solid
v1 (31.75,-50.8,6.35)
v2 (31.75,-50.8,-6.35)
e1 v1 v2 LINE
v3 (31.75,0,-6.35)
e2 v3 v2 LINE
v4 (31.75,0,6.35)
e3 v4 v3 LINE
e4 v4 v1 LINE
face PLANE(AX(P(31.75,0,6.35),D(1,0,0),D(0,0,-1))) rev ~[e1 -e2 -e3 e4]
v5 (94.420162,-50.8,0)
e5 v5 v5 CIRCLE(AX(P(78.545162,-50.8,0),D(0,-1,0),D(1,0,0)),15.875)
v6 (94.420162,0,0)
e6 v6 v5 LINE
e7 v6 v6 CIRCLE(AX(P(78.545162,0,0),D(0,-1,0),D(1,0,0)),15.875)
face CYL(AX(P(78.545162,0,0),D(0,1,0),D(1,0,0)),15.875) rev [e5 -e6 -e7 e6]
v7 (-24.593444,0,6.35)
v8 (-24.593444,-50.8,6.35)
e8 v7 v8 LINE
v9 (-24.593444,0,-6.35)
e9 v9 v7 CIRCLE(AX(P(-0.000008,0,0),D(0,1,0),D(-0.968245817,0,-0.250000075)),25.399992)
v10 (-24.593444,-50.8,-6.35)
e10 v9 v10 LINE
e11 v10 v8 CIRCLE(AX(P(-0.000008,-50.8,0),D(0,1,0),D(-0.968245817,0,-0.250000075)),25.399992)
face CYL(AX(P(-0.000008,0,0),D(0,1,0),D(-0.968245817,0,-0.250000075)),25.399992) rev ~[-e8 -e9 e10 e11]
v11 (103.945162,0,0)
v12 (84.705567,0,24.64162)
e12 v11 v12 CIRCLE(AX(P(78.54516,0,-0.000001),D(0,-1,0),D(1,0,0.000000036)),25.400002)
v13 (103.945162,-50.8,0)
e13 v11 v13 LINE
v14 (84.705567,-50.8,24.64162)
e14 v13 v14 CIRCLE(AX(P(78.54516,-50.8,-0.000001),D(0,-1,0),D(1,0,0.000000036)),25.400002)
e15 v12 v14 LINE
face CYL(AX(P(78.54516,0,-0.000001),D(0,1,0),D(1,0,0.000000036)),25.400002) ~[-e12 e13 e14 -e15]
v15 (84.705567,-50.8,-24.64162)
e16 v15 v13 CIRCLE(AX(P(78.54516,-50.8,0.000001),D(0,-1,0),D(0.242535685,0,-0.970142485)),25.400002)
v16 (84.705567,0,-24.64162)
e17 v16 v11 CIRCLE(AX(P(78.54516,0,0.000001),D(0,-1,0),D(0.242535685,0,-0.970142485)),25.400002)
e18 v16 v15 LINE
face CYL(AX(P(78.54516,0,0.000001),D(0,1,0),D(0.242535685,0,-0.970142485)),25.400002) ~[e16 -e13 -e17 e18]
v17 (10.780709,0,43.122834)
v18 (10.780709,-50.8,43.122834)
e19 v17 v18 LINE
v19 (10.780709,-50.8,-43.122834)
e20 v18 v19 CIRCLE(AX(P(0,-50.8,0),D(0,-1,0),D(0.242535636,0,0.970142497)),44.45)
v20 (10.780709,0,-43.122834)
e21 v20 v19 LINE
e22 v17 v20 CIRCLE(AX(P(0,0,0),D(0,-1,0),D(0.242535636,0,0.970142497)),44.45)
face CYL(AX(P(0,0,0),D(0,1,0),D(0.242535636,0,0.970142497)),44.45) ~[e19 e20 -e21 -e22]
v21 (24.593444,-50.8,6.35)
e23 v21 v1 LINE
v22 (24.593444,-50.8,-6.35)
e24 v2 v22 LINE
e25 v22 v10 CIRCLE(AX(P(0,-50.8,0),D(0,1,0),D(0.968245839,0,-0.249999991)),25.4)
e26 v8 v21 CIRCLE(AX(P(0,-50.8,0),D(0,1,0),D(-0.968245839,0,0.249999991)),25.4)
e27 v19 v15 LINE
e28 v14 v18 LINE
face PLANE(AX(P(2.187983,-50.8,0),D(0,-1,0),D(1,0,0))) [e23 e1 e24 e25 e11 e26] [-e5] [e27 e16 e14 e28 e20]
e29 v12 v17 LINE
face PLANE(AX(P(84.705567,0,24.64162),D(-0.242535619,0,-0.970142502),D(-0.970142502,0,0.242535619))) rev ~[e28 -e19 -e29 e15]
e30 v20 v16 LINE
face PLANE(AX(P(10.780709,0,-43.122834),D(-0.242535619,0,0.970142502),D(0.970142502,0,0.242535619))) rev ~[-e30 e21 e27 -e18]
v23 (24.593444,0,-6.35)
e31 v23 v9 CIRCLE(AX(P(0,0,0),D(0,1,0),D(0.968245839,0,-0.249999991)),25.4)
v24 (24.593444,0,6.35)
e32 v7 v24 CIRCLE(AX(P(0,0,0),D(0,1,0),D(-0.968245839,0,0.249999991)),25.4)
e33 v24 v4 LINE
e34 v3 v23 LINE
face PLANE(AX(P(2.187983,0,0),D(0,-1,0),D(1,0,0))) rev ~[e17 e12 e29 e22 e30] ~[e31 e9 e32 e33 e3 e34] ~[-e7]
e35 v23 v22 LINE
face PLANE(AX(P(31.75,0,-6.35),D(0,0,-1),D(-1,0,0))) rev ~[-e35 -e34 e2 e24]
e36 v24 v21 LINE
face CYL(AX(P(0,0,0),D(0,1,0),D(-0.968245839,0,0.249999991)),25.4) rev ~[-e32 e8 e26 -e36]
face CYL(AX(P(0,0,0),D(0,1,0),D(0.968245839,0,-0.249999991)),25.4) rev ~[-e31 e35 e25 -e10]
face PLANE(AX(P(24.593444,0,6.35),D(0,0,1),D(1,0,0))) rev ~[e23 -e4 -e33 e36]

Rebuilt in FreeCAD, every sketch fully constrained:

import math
import FreeCAD as App
import Part
import Sketcher
Q = App.Units.Quantity

doc = App.newDocument("Part")
body = doc.addObject("PartDesign::Body", "Body")

# Sketch on XZ plane
sketch1 = doc.addObject("Sketcher::SketchObject", "Sketch")
body.addObject(sketch1)
sketch1.AttachmentSupport = (doc.XZ_Plane, [""])
sketch1.MapMode = "FlatFace"
sketch1.addGeometry(Part.ArcOfCircle(Part.Circle(App.Vector(0, 0, 0), App.Vector(0, 0, 1), 44), math.radians(76), math.radians(284)), False)
sketch1.addGeometry(Part.LineSegment(App.Vector(11, -43, 0), App.Vector(85, -25, 0)), False)
sketch1.addGeometry(Part.ArcOfCircle(Part.Circle(App.Vector(79, 0, 0), App.Vector(0, 0, 1), 25), math.radians(-76), math.radians(0)), False)
sketch1.addGeometry(Part.ArcOfCircle(Part.Circle(App.Vector(79, 0, 0), App.Vector(0, 0, 1), 25), math.radians(0), math.radians(76)), False)
sketch1.addGeometry(Part.LineSegment(App.Vector(85, 25, 0), App.Vector(11, 43, 0)), False)
sketch1.addGeometry(Part.ArcOfCircle(Part.Circle(App.Vector(0, 0, 0), App.Vector(0, 0, 1), 25), math.radians(14), math.radians(166)), False)
sketch1.addGeometry(Part.LineSegment(App.Vector(25, 6, 0), App.Vector(32, 6, 0)), False)
sketch1.addGeometry(Part.LineSegment(App.Vector(32, 6, 0), App.Vector(32, -6, 0)), False)
sketch1.addGeometry(Part.LineSegment(App.Vector(32, -6, 0), App.Vector(25, -6, 0)), False)
sketch1.addGeometry(Part.ArcOfCircle(Part.Circle(App.Vector(0, 0, 0), App.Vector(0, 0, 1), 25), math.radians(-166), math.radians(-14)), False)
sketch1.addGeometry(Part.ArcOfCircle(Part.Circle(App.Vector(0, 0, 0), App.Vector(0, 0, 1), 25), math.radians(166), math.radians(194)), False)
sketch1.addGeometry(Part.Circle(App.Vector(79, 0, 0), App.Vector(0, 0, 1), 16), False)
sketch1.addConstraint(Sketcher.Constraint("Tangent", 0, 2, 1, 1))
sketch1.addConstraint(Sketcher.Constraint("Tangent", 1, 2, 2, 1))
sketch1.addConstraint(Sketcher.Constraint("Tangent", 2, 2, 3, 1))
sketch1.addConstraint(Sketcher.Constraint("Tangent", 3, 2, 4, 1))
sketch1.addConstraint(Sketcher.Constraint("Tangent", 4, 2, 0, 1))
sketch1.addConstraint(Sketcher.Constraint("Coincident", 5, 1, 6, 1))
sketch1.addConstraint(Sketcher.Constraint("Coincident", 6, 2, 7, 1))
sketch1.addConstraint(Sketcher.Constraint("Coincident", 7, 2, 8, 1))
sketch1.addConstraint(Sketcher.Constraint("Coincident", 8, 2, 9, 2))
sketch1.addConstraint(Sketcher.Constraint("Tangent", 9, 1, 10, 2))
sketch1.addConstraint(Sketcher.Constraint("Tangent", 10, 1, 5, 2))
sketch1.addConstraint(Sketcher.Constraint("Horizontal", 6))
sketch1.addConstraint(Sketcher.Constraint("Vertical", 7))
sketch1.addConstraint(Sketcher.Constraint("Horizontal", 8))
sketch1.addConstraint(Sketcher.Constraint("Coincident", 0, 3, -1, 1))
sketch1.addConstraint(Sketcher.Constraint("Coincident", 5, 3, -1, 1))
sketch1.addConstraint(Sketcher.Constraint("Coincident", 9, 3, -1, 1))
sketch1.addConstraint(Sketcher.Constraint("Coincident", 11, 3, 2, 3))
sketch1.addConstraint(Sketcher.Constraint("Equal", 2, 3))
sketch1.addConstraint(Sketcher.Constraint("PointOnObject", 2, 3, -1))
sketch1.addConstraint(Sketcher.Constraint("PointOnObject", 2, 2, -1))
sketch1.addConstraint(Sketcher.Constraint("Horizontal", 8, 2, 9, 1))
sketch1.addConstraint(Sketcher.Constraint("Horizontal", 6, 2, 10, 1))
sketch1.addConstraint(Sketcher.Constraint("Vertical", 5, 1, 8, 2))
sketch1.addConstraint(Sketcher.Constraint("Radius", 2, Q("1.0000001 in")))
sketch1.addConstraint(Sketcher.Constraint("Radius", 5, Q("1 in")))
sketch1.addConstraint(Sketcher.Constraint("Diameter", 11, Q("1.25 in")))
sketch1.addConstraint(Sketcher.Constraint("Radius", 0, Q("1.75 in")))
sketch1.addConstraint(Sketcher.Constraint("Distance", 1, Q("3 in")))
sketch1.addConstraint(Sketcher.Constraint("DistanceY", 7, 2, 7, 1, Q("0.5 in")))
sketch1.addConstraint(Sketcher.Constraint("DistanceX", -1, 1, 6, 2, Q("1.25 in")))
pad1 = doc.addObject("PartDesign::Pad", "Pad")
body.addObject(pad1)
pad1.Profile = sketch1
pad1.Length = Q("2 in")

doc.recompute()
